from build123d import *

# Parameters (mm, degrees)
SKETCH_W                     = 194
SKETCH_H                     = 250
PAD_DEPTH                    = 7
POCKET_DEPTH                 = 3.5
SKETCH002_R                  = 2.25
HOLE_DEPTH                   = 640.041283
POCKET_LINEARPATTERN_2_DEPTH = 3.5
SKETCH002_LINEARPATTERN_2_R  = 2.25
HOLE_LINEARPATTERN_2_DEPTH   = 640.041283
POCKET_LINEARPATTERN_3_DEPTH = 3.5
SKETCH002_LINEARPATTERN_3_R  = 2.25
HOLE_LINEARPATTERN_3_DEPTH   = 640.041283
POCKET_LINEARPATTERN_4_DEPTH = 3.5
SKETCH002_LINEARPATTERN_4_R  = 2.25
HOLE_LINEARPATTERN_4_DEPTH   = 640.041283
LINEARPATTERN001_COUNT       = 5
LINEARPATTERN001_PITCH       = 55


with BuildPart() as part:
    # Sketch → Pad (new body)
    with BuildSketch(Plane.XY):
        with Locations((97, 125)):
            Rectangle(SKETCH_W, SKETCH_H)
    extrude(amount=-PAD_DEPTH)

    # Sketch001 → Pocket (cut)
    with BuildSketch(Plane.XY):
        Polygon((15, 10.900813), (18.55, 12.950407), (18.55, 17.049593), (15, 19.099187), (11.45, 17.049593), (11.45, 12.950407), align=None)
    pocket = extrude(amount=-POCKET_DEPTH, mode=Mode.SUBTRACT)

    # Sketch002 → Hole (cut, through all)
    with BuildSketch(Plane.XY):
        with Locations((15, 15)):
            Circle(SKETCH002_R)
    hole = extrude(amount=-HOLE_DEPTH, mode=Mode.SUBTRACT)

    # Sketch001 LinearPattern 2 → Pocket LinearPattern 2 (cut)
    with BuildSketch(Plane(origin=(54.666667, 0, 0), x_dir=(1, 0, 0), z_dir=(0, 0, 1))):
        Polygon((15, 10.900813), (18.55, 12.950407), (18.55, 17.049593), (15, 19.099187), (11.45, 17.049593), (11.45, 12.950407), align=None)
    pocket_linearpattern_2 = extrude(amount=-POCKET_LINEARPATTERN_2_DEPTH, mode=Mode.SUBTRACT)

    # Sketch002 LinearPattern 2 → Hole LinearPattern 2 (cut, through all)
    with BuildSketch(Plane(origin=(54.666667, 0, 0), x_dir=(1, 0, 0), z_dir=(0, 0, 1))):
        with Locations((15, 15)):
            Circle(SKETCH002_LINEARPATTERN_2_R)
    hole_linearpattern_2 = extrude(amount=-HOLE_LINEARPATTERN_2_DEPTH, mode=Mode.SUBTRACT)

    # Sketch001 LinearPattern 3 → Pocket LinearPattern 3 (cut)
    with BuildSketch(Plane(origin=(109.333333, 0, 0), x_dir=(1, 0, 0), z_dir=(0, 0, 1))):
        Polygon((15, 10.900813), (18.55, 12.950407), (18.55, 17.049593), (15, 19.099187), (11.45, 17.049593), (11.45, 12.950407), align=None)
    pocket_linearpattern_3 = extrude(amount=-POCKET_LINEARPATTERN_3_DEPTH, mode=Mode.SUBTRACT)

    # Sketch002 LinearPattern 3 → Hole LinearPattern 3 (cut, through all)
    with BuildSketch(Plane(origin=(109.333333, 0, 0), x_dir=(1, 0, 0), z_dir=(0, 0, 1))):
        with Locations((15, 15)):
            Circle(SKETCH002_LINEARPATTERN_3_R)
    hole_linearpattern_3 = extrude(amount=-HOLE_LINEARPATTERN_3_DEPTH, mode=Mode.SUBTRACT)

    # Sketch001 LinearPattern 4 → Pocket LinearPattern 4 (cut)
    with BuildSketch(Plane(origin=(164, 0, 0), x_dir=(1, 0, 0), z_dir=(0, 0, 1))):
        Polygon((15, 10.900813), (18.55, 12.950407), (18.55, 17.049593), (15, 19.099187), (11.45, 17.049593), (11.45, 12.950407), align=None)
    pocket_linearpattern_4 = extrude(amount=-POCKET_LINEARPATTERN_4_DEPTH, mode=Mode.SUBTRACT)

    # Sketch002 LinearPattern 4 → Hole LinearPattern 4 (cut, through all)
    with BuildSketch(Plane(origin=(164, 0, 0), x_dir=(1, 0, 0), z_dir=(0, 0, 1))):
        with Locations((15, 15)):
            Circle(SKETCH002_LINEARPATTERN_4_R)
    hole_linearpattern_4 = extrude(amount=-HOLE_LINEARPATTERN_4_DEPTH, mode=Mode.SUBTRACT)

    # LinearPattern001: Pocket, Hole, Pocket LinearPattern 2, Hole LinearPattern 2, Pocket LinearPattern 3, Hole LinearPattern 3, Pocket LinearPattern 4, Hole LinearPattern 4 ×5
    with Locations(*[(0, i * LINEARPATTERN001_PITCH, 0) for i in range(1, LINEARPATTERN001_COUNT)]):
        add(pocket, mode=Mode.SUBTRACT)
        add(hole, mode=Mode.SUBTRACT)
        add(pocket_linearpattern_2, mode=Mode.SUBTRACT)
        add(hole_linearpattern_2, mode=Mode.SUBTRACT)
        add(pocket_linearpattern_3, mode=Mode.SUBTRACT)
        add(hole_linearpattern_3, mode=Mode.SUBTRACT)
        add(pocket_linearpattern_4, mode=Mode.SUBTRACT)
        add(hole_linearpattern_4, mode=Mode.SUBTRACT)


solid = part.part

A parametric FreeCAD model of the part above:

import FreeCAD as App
import Part
import Sketcher

V = App.Vector
Q = App.Units.Quantity


def add_polygon(sketch, points):
    """Adds a closed chain of lines whose ends are joined by coincident constraints."""
    first, n = sketch.GeometryCount, len(points)
    for a, b in zip(points, points[1:] + points[:1]):
        sketch.addGeometry(Part.LineSegment(App.Vector(*a, 0), App.Vector(*b, 0)), False)
    for i in range(n):
        sketch.addConstraint(Sketcher.Constraint("Coincident", first + i, 2, first + (i + 1) % n, 1))

doc = App.newDocument("Part")
body = doc.addObject("PartDesign::Body", "Body")

# Sketch on XY plane
sketch1 = doc.addObject("Sketcher::SketchObject", "Sketch")
body.addObject(sketch1)
sketch1.AttachmentSupport = (doc.XY_Plane, [""])
sketch1.MapMode = "FlatFace"
add_polygon(sketch1, [(0, 250), (0, 0), (194, 0), (194, 250)])  # lines 0-3
sketch1.addConstraint(Sketcher.Constraint("Vertical", 0))
sketch1.addConstraint(Sketcher.Constraint("Horizontal", 1))
sketch1.addConstraint(Sketcher.Constraint("Vertical", 2))
sketch1.addConstraint(Sketcher.Constraint("Horizontal", 3))
sketch1.addConstraint(Sketcher.Constraint("Coincident", 0, 2, -1, 1))
sketch1.addConstraint(Sketcher.Constraint("DistanceX", 1, 1, 1, 2, Q("194 mm")))
sketch1.addConstraint(Sketcher.Constraint("DistanceY", 0, 2, 0, 1, Q("250 mm")))
pad1 = doc.addObject("PartDesign::Pad", "Pad")
body.addObject(pad1)
pad1.Profile = sketch1
pad1.Length = 7
pad1.Reversed = True

# Sketch on XY plane
sketch2 = doc.addObject("Sketcher::SketchObject", "Sketch001")
body.addObject(sketch2)
sketch2.AttachmentSupport = (doc.XY_Plane, [""])
sketch2.MapMode = "FlatFace"
add_polygon(sketch2, [(15, 10.900813), (18.55, 12.950407), (18.55, 17.049593), (15, 19.099187), (11.45, 17.049593), (11.45, 12.950407)])  # lines 0-5
sketch2.addConstraint(Sketcher.Constraint("Vertical", 1))
sketch2.addConstraint(Sketcher.Constraint("Vertical", 4))
sketch2.addConstraint(Sketcher.Constraint("Parallel", 0, 3))
sketch2.addConstraint(Sketcher.Constraint("Parallel", 2, 5))
sketch2.addConstraint(Sketcher.Constraint("Horizontal", 1, 2, 3, 2))
sketch2.addConstraint(Sketcher.Constraint("Horizontal", 0, 2, 4, 2))
sketch2.addConstraint(Sketcher.Constraint("Vertical", 2, 2, 5, 2))
sketch2.addConstraint(Sketcher.Constraint("Angle", 0, Q("30.000007 deg")))
sketch2.addConstraint(Sketcher.Constraint("DistanceX", -1, 1, 2, 2, Q("15 mm")))
sketch2.addConstraint(Sketcher.Constraint("DistanceX", 3, 2, 1, 2, Q("7.1 mm")))
sketch2.addConstraint(Sketcher.Constraint("DistanceY", 1, 1, 1, 2, Q("4.099186 mm")))
sketch2.addConstraint(Sketcher.Constraint("DistanceY", -1, 1, 0, 2, Q("12.950407 mm")))
pocket1 = doc.addObject("PartDesign::Pocket", "Pocket")
body.addObject(pocket1)
pocket1.Profile = sketch2
pocket1.Length = 3.5

# Sketch on XY plane
sketch3 = doc.addObject("Sketcher::SketchObject", "Sketch002")
body.addObject(sketch3)
sketch3.AttachmentSupport = (doc.XY_Plane, [""])
sketch3.MapMode = "FlatFace"
sketch3.addGeometry(Part.Circle(V(15, 15, 0), V(0, 0, 1), 2.25), False)
sketch3.addConstraint(Sketcher.Constraint("Diameter", 0, Q("4.5 mm")))
sketch3.addConstraint(Sketcher.Constraint("DistanceX", -1, 1, 0, 3, Q("15 mm")))
sketch3.addConstraint(Sketcher.Constraint("DistanceY", -1, 1, 0, 3, Q("15 mm")))
pocket2 = doc.addObject("PartDesign::Pocket", "Pocket001")
body.addObject(pocket2)
pocket2.Profile = sketch3
pocket2.Type = "ThroughAll"

# Sketch on XY plane
sketch4 = doc.addObject("Sketcher::SketchObject", "Sketch003")
body.addObject(sketch4)
sketch4.AttachmentSupport = (doc.XY_Plane, [""])
sketch4.MapMode = "FlatFace"
add_polygon(sketch4, [(69.666667, 10.900813), (73.216667, 12.950407), (73.216667, 17.049593), (69.666667, 19.099187), (66.116667, 17.049593), (66.116667, 12.950407)])  # lines 0-5
sketch4.addConstraint(Sketcher.Constraint("Vertical", 1))
sketch4.addConstraint(Sketcher.Constraint("Vertical", 4))
sketch4.addConstraint(Sketcher.Constraint("Parallel", 0, 3))
sketch4.addConstraint(Sketcher.Constraint("Parallel", 2, 5))
sketch4.addConstraint(Sketcher.Constraint("Horizontal", 1, 2, 3, 2))
sketch4.addConstraint(Sketcher.Constraint("Horizontal", 0, 2, 4, 2))
sketch4.addConstraint(Sketcher.Constraint("Vertical", 2, 2, 5, 2))
sketch4.addConstraint(Sketcher.Constraint("Angle", 0, Q("30.000007 deg")))
sketch4.addConstraint(Sketcher.Constraint("DistanceX", 3, 2, 1, 2, Q("7.1 mm")))
sketch4.addConstraint(Sketcher.Constraint("DistanceY", 1, 1, 1, 2, Q("4.099186 mm")))
sketch4.addConstraint(Sketcher.Constraint("DistanceX", -1, 1, 0, 2, Q("73.216667 mm")))
sketch4.addConstraint(Sketcher.Constraint("DistanceY", -1, 1, 0, 2, Q("12.950407 mm")))
pocket3 = doc.addObject("PartDesign::Pocket", "Pocket002")
body.addObject(pocket3)
pocket3.Profile = sketch4
pocket3.Length = 3.5

# Sketch on XY plane
sketch5 = doc.addObject("Sketcher::SketchObject", "Sketch004")
body.addObject(sketch5)
sketch5.AttachmentSupport = (doc.XY_Plane, [""])
sketch5.MapMode = "FlatFace"
sketch5.addGeometry(Part.Circle(V(69.666667, 15, 0), V(0, 0, 1), 2.25), False)
sketch5.addConstraint(Sketcher.Constraint("Diameter", 0, Q("4.5 mm")))
sketch5.addConstraint(Sketcher.Constraint("DistanceY", -1, 1, 0, 3, Q("15 mm")))
sketch5.addConstraint(Sketcher.Constraint("DistanceX", -1, 1, 0, 3, Q("69.666667 mm")))
pocket4 = doc.addObject("PartDesign::Pocket", "Pocket003")
body.addObject(pocket4)
pocket4.Profile = sketch5
pocket4.Type = "ThroughAll"

# Sketch on XY plane
sketch6 = doc.addObject("Sketcher::SketchObject", "Sketch005")
body.addObject(sketch6)
sketch6.AttachmentSupport = (doc.XY_Plane, [""])
sketch6.MapMode = "FlatFace"
add_polygon(sketch6, [(124.333333, 10.900813), (127.883333, 12.950407), (127.883333, 17.049593), (124.333333, 19.099187), (120.783333, 17.049593), (120.783333, 12.950407)])  # lines 0-5
sketch6.addConstraint(Sketcher.Constraint("Vertical", 1))
sketch6.addConstraint(Sketcher.Constraint("Vertical", 4))
sketch6.addConstraint(Sketcher.Constraint("Parallel", 0, 3))
sketch6.addConstraint(Sketcher.Constraint("Parallel", 2, 5))
sketch6.addConstraint(Sketcher.Constraint("Horizontal", 1, 2, 3, 2))
sketch6.addConstraint(Sketcher.Constraint("Horizontal", 0, 2, 4, 2))
sketch6.addConstraint(Sketcher.Constraint("Vertical", 2, 2, 5, 2))
sketch6.addConstraint(Sketcher.Constraint("Angle", 0, Q("30.000007 deg")))
sketch6.addConstraint(Sketcher.Constraint("DistanceX", 3, 2, 1, 2, Q("7.1 mm")))
sketch6.addConstraint(Sketcher.Constraint("DistanceY", 1, 1, 1, 2, Q("4.099186 mm")))
sketch6.addConstraint(Sketcher.Constraint("DistanceX", -1, 1, 0, 2, Q("127.883333 mm")))
sketch6.addConstraint(Sketcher.Constraint("DistanceY", -1, 1, 0, 2, Q("12.950407 mm")))
pocket5 = doc.addObject("PartDesign::Pocket", "Pocket004")
body.addObject(pocket5)
pocket5.Profile = sketch6
pocket5.Length = 3.5

# Sketch on XY plane
sketch7 = doc.addObject("Sketcher::SketchObject", "Sketch006")
body.addObject(sketch7)
sketch7.AttachmentSupport = (doc.XY_Plane, [""])
sketch7.MapMode = "FlatFace"
sketch7.addGeometry(Part.Circle(V(124.333333, 15, 0), V(0, 0, 1), 2.25), False)
sketch7.addConstraint(Sketcher.Constraint("Diameter", 0, Q("4.5 mm")))
sketch7.addConstraint(Sketcher.Constraint("DistanceY", -1, 1, 0, 3, Q("15 mm")))
sketch7.addConstraint(Sketcher.Constraint("DistanceX", -1, 1, 0, 3, Q("124.333333 mm")))
pocket6 = doc.addObject("PartDesign::Pocket", "Pocket005")
body.addObject(pocket6)
pocket6.Profile = sketch7
pocket6.Type = "ThroughAll"

# Sketch on XY plane
sketch8 = doc.addObject("Sketcher::SketchObject", "Sketch007")
body.addObject(sketch8)
sketch8.AttachmentSupport = (doc.XY_Plane, [""])
sketch8.MapMode = "FlatFace"
add_polygon(sketch8, [(179, 10.900813), (182.55, 12.950407), (182.55, 17.049593), (179, 19.099187), (175.45, 17.049593), (175.45, 12.950407)])  # lines 0-5
sketch8.addConstraint(Sketcher.Constraint("Vertical", 1))
sketch8.addConstraint(Sketcher.Constraint("Vertical", 4))
sketch8.addConstraint(Sketcher.Constraint("Parallel", 0, 3))
sketch8.addConstraint(Sketcher.Constraint("Parallel", 2, 5))
sketch8.addConstraint(Sketcher.Constraint("Horizontal", 1, 2, 3, 2))
sketch8.addConstraint(Sketcher.Constraint("Horizontal", 0, 2, 4, 2))
sketch8.addConstraint(Sketcher.Constraint("Vertical", 2, 2, 5, 2))
sketch8.addConstraint(Sketcher.Constraint("Angle", 0, Q("30.000007 deg")))
sketch8.addConstraint(Sketcher.Constraint("DistanceX", -1, 1, 2, 2, Q("179 mm")))
sketch8.addConstraint(Sketcher.Constraint("DistanceX", 3, 2, 1, 2, Q("7.1 mm")))
sketch8.addConstraint(Sketcher.Constraint("DistanceY", 1, 1, 1, 2, Q("4.099186 mm")))
sketch8.addConstraint(Sketcher.Constraint("DistanceY", -1, 1, 0, 2, Q("12.950407 mm")))
pocket7 = doc.addObject("PartDesign::Pocket", "Pocket006")
body.addObject(pocket7)
pocket7.Profile = sketch8
pocket7.Length = 3.5

# Sketch on XY plane
sketch9 = doc.addObject("Sketcher::SketchObject", "Sketch008")
body.addObject(sketch9)
sketch9.AttachmentSupport = (doc.XY_Plane, [""])
sketch9.MapMode = "FlatFace"
sketch9.addGeometry(Part.Circle(V(179, 15, 0), V(0, 0, 1), 2.25), False)
sketch9.addConstraint(Sketcher.Constraint("Diameter", 0, Q("4.5 mm")))
sketch9.addConstraint(Sketcher.Constraint("DistanceX", -1, 1, 0, 3, Q("179 mm")))
sketch9.addConstraint(Sketcher.Constraint("DistanceY", -1, 1, 0, 3, Q("15 mm")))
pocket8 = doc.addObject("PartDesign::Pocket", "Pocket007")
body.addObject(pocket8)
pocket8.Profile = sketch9
pocket8.Type = "ThroughAll"
doc.recompute()

linearpattern = doc.addObject("PartDesign::LinearPattern", "LinearPattern")
body.addObject(linearpattern)
linearpattern.Originals = [pocket1, pocket2, pocket3, pocket4, pocket5, pocket6, pocket7, pocket8]
linearpattern.Direction = (doc.Y_Axis, [""])
linearpattern.Mode = "offset"
linearpattern.Offset = 55
linearpattern.Occurrences = 5
body.Tip = linearpattern

doc.recompute()
